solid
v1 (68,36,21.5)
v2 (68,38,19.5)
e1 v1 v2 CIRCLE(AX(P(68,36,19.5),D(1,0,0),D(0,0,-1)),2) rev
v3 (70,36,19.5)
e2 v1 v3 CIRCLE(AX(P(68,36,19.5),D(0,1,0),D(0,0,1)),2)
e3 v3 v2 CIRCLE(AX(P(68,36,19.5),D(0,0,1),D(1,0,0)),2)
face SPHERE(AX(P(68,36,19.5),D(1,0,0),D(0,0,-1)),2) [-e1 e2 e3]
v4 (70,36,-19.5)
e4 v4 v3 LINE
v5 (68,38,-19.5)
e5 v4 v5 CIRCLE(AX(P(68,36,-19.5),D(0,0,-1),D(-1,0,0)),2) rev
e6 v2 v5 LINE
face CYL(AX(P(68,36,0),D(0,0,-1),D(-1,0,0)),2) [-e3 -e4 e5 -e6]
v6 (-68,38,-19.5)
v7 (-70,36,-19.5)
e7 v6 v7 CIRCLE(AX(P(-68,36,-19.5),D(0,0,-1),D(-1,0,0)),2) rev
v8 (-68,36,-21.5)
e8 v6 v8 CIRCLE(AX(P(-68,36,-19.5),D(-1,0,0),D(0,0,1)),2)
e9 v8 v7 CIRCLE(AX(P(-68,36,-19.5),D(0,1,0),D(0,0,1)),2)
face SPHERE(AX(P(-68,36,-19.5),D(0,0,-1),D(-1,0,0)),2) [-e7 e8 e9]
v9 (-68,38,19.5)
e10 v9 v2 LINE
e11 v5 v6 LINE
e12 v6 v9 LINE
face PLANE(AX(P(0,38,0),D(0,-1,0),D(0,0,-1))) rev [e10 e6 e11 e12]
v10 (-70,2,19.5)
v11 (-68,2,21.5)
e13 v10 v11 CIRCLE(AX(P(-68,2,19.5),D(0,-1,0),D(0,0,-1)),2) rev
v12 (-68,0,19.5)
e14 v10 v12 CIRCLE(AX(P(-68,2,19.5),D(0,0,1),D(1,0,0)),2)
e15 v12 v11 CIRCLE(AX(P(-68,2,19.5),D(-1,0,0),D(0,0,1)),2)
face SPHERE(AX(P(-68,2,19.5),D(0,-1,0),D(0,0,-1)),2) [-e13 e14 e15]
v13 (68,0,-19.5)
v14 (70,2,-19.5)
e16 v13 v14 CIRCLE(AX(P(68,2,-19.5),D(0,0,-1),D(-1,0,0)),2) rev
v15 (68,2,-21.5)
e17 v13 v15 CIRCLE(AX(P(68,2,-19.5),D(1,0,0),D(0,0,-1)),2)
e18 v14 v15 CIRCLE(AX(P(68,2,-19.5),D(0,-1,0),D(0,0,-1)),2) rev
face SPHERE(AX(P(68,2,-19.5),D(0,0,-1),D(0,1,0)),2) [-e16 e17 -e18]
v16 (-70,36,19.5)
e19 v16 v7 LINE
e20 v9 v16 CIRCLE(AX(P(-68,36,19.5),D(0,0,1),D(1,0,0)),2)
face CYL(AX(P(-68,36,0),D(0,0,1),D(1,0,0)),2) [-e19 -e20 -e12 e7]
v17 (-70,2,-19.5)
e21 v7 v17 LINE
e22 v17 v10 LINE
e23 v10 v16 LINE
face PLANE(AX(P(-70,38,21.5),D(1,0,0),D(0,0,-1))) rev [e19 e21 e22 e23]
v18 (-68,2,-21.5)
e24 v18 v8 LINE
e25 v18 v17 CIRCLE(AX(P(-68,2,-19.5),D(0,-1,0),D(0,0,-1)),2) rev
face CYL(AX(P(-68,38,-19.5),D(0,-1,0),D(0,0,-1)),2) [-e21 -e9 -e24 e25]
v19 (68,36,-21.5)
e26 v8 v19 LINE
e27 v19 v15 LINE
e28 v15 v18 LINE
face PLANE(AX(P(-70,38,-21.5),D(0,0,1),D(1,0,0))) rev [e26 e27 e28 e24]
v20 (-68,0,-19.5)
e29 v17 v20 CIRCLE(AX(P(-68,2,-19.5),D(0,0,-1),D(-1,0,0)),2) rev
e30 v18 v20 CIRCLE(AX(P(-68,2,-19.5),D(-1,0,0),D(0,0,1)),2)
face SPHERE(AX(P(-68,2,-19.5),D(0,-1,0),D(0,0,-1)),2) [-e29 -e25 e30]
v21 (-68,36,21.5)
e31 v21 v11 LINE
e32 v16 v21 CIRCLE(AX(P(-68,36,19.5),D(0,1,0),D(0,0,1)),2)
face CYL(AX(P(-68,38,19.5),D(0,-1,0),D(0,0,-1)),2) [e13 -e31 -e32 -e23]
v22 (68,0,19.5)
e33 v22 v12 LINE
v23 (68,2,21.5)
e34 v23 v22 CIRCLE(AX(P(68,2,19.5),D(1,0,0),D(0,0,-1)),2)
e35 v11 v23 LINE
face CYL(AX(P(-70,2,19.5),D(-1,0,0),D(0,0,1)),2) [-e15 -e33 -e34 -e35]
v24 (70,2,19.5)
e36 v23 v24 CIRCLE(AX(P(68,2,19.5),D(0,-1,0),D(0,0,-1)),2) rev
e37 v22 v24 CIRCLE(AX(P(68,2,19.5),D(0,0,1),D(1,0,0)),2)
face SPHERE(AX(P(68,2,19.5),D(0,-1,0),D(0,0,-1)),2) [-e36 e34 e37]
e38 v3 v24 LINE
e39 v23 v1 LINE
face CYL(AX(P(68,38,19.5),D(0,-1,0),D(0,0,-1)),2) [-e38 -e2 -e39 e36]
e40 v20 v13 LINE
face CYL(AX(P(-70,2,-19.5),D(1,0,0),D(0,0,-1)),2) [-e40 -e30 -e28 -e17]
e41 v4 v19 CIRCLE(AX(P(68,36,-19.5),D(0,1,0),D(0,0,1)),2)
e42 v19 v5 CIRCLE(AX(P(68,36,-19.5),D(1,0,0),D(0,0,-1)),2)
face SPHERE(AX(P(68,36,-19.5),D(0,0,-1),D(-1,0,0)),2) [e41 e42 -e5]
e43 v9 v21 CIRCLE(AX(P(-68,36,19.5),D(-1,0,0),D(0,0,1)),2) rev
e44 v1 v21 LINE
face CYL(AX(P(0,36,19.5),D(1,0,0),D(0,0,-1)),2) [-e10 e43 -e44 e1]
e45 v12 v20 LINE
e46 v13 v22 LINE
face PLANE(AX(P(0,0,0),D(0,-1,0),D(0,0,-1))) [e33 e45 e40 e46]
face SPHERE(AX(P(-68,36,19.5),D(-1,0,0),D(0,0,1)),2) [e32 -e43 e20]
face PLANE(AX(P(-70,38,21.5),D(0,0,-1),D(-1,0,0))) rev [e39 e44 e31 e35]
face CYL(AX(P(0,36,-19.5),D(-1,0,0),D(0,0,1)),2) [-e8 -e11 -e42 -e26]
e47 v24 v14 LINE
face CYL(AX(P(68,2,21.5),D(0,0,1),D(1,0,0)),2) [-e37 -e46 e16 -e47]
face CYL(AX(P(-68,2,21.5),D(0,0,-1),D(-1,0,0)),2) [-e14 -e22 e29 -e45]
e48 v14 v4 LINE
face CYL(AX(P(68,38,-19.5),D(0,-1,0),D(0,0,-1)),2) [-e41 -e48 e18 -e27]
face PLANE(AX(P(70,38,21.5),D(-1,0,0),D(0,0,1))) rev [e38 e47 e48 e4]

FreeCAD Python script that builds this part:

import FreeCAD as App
import Part
import Sketcher

doc = App.newDocument("Part")
body = doc.addObject("PartDesign::Body", "Body")

sketch1 = body.newObject("Sketcher::SketchObject", "Sketch")
sketch1.AttachmentSupport = (doc.getObject("XZ_Plane"), [""])
sketch1.MapMode = "FlatFace"
sketch1.addGeometry(Part.LineSegment(App.Vector(-70, -22, 0), App.Vector(-70, 22, 0)), False)
sketch1.addGeometry(Part.LineSegment(App.Vector(-70, 22, 0), App.Vector(70, 22, 0)), False)
sketch1.addGeometry(Part.LineSegment(App.Vector(70, 22, 0), App.Vector(70, -22, 0)), False)
sketch1.addGeometry(Part.LineSegment(App.Vector(70, -22, 0), App.Vector(-70, -22, 0)), False)
sketch1.addConstraint(Sketcher.Constraint("Coincident", 0, 2, 1, 1))
sketch1.addConstraint(Sketcher.Constraint("Coincident", 1, 2, 2, 1))
sketch1.addConstraint(Sketcher.Constraint("Coincident", 2, 2, 3, 1))
sketch1.addConstraint(Sketcher.Constraint("Coincident", 3, 2, 0, 1))
sketch1.addConstraint(Sketcher.Constraint("Vertical", 0))
sketch1.addConstraint(Sketcher.Constraint("Horizontal", 1))
sketch1.addConstraint(Sketcher.Constraint("Vertical", 2))
sketch1.addConstraint(Sketcher.Constraint("Horizontal", 3))
sketch1.addConstraint(Sketcher.Constraint("Symmetric", 0, 2, 2, 2, -1, 1))
sketch1.addConstraint(Sketcher.Constraint("DistanceX", 1, 1, 1, 2, 140.0))
sketch1.addConstraint(Sketcher.Constraint("DistanceY", 0, 1, 0, 2, 43.0))
pad1 = body.newObject("PartDesign::Pad", "Pad")
pad1.Profile = sketch1
pad1.Length = 38
pad1.Reversed = True
doc.recompute()

fillet = body.newObject("PartDesign::Fillet", "Fillet")
fillet.Base = (pad1, ["Edge1"])
fillet.UseAllEdges = True
fillet.Radius = 2

doc.recompute()
